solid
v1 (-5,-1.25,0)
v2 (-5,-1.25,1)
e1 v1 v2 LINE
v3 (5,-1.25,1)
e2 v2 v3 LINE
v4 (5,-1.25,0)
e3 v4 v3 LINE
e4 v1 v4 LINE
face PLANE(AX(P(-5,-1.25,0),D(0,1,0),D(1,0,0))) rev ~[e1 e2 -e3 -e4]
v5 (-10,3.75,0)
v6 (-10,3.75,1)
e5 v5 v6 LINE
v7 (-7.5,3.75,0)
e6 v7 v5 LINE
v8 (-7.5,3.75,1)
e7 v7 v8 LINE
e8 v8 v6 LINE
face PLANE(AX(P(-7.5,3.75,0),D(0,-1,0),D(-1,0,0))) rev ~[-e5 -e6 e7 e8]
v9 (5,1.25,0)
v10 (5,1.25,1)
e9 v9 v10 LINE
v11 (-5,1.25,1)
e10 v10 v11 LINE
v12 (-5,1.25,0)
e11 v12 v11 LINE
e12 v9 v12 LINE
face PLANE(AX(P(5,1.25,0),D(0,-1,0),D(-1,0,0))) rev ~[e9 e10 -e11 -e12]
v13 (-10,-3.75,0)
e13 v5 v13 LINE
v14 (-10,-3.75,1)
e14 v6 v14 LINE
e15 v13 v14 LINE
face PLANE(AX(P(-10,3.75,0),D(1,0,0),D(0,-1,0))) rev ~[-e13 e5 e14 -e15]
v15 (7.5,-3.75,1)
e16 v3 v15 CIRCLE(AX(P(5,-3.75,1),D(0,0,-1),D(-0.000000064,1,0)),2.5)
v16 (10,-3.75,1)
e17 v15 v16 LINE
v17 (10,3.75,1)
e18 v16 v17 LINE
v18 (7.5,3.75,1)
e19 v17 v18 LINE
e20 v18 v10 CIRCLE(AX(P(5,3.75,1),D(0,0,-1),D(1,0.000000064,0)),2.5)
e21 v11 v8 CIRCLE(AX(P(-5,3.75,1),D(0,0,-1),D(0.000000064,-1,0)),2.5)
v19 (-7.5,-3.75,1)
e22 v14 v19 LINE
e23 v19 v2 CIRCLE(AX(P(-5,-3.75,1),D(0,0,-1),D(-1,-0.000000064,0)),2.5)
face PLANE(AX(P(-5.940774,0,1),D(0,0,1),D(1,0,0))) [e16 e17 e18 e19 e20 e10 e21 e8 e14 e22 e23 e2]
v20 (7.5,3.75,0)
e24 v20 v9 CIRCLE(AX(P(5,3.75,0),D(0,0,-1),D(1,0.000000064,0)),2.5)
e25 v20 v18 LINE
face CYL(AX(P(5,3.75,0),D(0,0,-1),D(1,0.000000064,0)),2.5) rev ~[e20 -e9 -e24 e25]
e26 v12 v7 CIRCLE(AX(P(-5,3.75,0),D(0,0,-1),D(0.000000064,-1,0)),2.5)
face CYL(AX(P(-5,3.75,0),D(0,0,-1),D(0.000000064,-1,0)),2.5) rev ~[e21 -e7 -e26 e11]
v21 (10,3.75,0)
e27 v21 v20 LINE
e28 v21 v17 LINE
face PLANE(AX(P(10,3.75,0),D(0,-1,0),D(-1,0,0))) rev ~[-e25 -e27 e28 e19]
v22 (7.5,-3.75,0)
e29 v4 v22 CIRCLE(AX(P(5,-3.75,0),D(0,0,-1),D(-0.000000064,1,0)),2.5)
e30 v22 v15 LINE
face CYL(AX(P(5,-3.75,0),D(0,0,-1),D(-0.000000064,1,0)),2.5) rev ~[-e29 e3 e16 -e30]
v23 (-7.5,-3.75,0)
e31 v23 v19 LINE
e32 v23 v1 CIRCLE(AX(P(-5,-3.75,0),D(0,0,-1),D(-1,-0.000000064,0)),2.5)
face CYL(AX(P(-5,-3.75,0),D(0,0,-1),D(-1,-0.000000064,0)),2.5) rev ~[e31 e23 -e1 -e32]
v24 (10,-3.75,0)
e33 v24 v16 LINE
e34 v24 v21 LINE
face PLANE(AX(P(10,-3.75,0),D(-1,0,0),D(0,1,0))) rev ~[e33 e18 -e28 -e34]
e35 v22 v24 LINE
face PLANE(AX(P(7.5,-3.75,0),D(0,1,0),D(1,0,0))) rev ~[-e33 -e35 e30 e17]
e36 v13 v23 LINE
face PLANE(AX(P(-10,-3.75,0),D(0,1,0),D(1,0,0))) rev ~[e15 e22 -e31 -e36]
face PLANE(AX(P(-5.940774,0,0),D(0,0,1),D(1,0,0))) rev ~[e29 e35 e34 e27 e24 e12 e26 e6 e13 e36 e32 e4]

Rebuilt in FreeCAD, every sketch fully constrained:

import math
import FreeCAD as App
import Part
import Sketcher
from FreeCAD import Vector

doc = App.newDocument("Part")
params = doc.addObject("Spreadsheet::Sheet", "Params")
for row, (alias, value) in enumerate([
    ("sketch1_radius", "2.5 mm"),
    ("sketch1_width", "10 mm"),
    ("sketch1_width2", "2.5 mm"),
    ("sketch1_height", "7.5 mm"),
    ("pad1_length", "1 mm"),
], start=1):
    params.set(f"A{row}", alias)
    params.set(f"B{row}", "=" + value)
    params.setAlias(f"B{row}", alias)

body = doc.addObject("PartDesign::Body", "Body")

# Sketch on XY plane
sketch1 = body.newObject("Sketcher::SketchObject", "Sketch")
sketch1.AttachmentSupport = (doc.getObject("XY_Plane"), [""])
sketch1.MapMode = "FlatFace"
sketch1.addGeometry(Part.ArcOfCircle(Part.Circle(Vector(-5, 3.7, 0), Vector(0, 0, 1), 2.5), math.radians(180), math.radians(270)), False)
sketch1.addGeometry(Part.LineSegment(Vector(-7.5, 3.8, 0), Vector(-10, 3.8, 0)), False)
sketch1.addGeometry(Part.LineSegment(Vector(-10, 3.8, 0), Vector(-10, -3.8, 0)), False)
sketch1.addGeometry(Part.LineSegment(Vector(-10, -3.8, 0), Vector(-7.5, -3.8, 0)), False)
sketch1.addGeometry(Part.ArcOfCircle(Part.Circle(Vector(-5, -3.7, 0), Vector(0, 0, 1), 2.5), math.radians(90), math.radians(180)), False)
sketch1.addGeometry(Part.LineSegment(Vector(-5, -1.2, 0), Vector(5, -1.2, 0)), False)
sketch1.addGeometry(Part.ArcOfCircle(Part.Circle(Vector(5, -3.7, 0), Vector(0, 0, 1), 2.5), math.radians(0), math.radians(90)), False)
sketch1.addGeometry(Part.LineSegment(Vector(7.5, -3.8, 0), Vector(10, -3.8, 0)), False)
sketch1.addGeometry(Part.LineSegment(Vector(10, -3.8, 0), Vector(10, 3.8, 0)), False)
sketch1.addGeometry(Part.LineSegment(Vector(10, 3.8, 0), Vector(7.5, 3.8, 0)), False)
sketch1.addGeometry(Part.ArcOfCircle(Part.Circle(Vector(5, 3.7, 0), Vector(0, 0, 1), 2.5), math.radians(-90), math.radians(0)), False)
sketch1.addGeometry(Part.LineSegment(Vector(5, 1.2, 0), Vector(-5, 1.2, 0)), False)
sketch1.addConstraint(Sketcher.Constraint("Coincident", 0, 1, 1, 1))
sketch1.addConstraint(Sketcher.Constraint("Coincident", 1, 2, 2, 1))
sketch1.addConstraint(Sketcher.Constraint("Coincident", 2, 2, 3, 1))
sketch1.addConstraint(Sketcher.Constraint("Coincident", 3, 2, 4, 2))
sketch1.addConstraint(Sketcher.Constraint("Tangent", 4, 1, 5, 1))
sketch1.addConstraint(Sketcher.Constraint("Tangent", 5, 2, 6, 2))
sketch1.addConstraint(Sketcher.Constraint("Coincident", 6, 1, 7, 1))
sketch1.addConstraint(Sketcher.Constraint("Coincident", 7, 2, 8, 1))
sketch1.addConstraint(Sketcher.Constraint("Coincident", 8, 2, 9, 1))
sketch1.addConstraint(Sketcher.Constraint("Coincident", 9, 2, 10, 2))
sketch1.addConstraint(Sketcher.Constraint("Tangent", 10, 1, 11, 1))
sketch1.addConstraint(Sketcher.Constraint("Tangent", 11, 2, 0, 2))
sketch1.addConstraint(Sketcher.Constraint("Horizontal", 1))
sketch1.addConstraint(Sketcher.Constraint("Vertical", 2))
sketch1.addConstraint(Sketcher.Constraint("Horizontal", 3))
sketch1.addConstraint(Sketcher.Constraint("Horizontal", 5))
sketch1.addConstraint(Sketcher.Constraint("Horizontal", 7))
sketch1.addConstraint(Sketcher.Constraint("Vertical", 8))
sketch1.addConstraint(Sketcher.Constraint("Horizontal", 9))
sketch1.addConstraint(Sketcher.Constraint("Horizontal", 11))
sketch1.addConstraint(Sketcher.Constraint("Equal", 0, 4))
sketch1.addConstraint(Sketcher.Constraint("Equal", 4, 6))
sketch1.addConstraint(Sketcher.Constraint("Equal", 6, 10))
sketch1.addConstraint(Sketcher.Constraint("Symmetric", 0, 3, 6, 3, -1, 1))
sketch1.addConstraint(Sketcher.Constraint("Symmetric", 1, 2, 7, 2, -1, 1))
sketch1.addConstraint(Sketcher.Constraint("Symmetric", 3, 2, 9, 2, -1, 1))
sketch1.addConstraint(Sketcher.Constraint("Symmetric", 3, 2, 6, 1, -2))
sketch1.addConstraint(Sketcher.Constraint("Horizontal", 10, 3, 0, 1))
sketch1.addConstraint(Sketcher.Constraint("Radius", 0, 2.5))
sketch1.addConstraint(Sketcher.Constraint("DistanceX", 5, 1, 5, 2, 10.0))
sketch1.addConstraint(Sketcher.Constraint("DistanceX", 1, 2, 1, 1, 2.5))
sketch1.addConstraint(Sketcher.Constraint("DistanceY", 2, 2, 2, 1, 7.5))
sketch1.setExpression("Constraints[28]", "Params.sketch1_radius")
sketch1.setExpression("Constraints[29]", "Params.sketch1_width")
sketch1.setExpression("Constraints[30]", "Params.sketch1_width2")
sketch1.setExpression("Constraints[31]", "Params.sketch1_height")
pad1 = body.newObject("PartDesign::Pad", "Pad")
pad1.Profile = sketch1
pad1.setExpression("Length", "Params.pad1_length")

doc.recompute()
